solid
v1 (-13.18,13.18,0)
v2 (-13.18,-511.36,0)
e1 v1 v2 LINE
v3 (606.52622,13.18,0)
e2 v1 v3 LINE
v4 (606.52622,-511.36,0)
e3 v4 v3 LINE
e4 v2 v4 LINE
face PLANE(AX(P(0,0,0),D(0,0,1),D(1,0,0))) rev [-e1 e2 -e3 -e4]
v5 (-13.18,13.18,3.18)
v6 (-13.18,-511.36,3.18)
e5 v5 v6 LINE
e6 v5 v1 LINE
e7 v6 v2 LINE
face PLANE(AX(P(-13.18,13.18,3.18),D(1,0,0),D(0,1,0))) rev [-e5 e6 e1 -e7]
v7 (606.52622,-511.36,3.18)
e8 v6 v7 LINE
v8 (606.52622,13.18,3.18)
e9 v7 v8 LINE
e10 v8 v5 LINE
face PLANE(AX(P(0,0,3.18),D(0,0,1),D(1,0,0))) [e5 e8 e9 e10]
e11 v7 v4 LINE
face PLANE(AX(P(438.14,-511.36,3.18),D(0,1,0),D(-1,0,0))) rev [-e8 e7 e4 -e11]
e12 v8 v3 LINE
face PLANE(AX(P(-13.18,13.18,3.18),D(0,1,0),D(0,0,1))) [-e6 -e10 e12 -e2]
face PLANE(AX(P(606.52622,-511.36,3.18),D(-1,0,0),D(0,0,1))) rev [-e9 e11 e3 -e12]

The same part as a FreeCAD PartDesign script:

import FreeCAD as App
import Part
import Sketcher

V = App.Vector
Q = App.Units.Quantity


def add_polygon(sketch, points):
    """Adds a closed chain of lines whose ends are joined by coincident constraints."""
    first, n = sketch.GeometryCount, len(points)
    for a, b in zip(points, points[1:] + points[:1]):
        sketch.addGeometry(Part.LineSegment(App.Vector(*a, 0), App.Vector(*b, 0)), False)
    for i in range(n):
        sketch.addConstraint(Sketcher.Constraint("Coincident", first + i, 2, first + (i + 1) % n, 1))

doc = App.newDocument("Part")
body = doc.addObject("PartDesign::Body", "Body")

sketch1 = body.newObject("Sketcher::SketchObject", "Sketch")
sketch1.AttachmentSupport = (doc.getObject("XY_Plane"), [""])
sketch1.MapMode = "FlatFace"
add_polygon(sketch1, [(607, 13), (-13, 13), (-13, -511), (607, -511)])
sketch1.addConstraint([
    Sketcher.Constraint("Horizontal", 0),
    Sketcher.Constraint("Vertical", 1),
    Sketcher.Constraint("Horizontal", 2),
    Sketcher.Constraint("Vertical", 3),
    Sketcher.Constraint("DistanceY", 1, 2, 1, 1, Q("524.54 mm")),
    Sketcher.Constraint("DistanceX", 0, 2, -1, 1, Q("13.18 mm")),
    Sketcher.Constraint("DistanceY", -1, 1, 0, 2, Q("13.18 mm")),
    Sketcher.Constraint("DistanceX", 0, 2, 0, 1, Q("619.70622 mm")),
])
pad1 = body.newObject("PartDesign::Pad", "Pad")
pad1.Profile = sketch1
pad1.Length = 3.18

doc.recompute()
